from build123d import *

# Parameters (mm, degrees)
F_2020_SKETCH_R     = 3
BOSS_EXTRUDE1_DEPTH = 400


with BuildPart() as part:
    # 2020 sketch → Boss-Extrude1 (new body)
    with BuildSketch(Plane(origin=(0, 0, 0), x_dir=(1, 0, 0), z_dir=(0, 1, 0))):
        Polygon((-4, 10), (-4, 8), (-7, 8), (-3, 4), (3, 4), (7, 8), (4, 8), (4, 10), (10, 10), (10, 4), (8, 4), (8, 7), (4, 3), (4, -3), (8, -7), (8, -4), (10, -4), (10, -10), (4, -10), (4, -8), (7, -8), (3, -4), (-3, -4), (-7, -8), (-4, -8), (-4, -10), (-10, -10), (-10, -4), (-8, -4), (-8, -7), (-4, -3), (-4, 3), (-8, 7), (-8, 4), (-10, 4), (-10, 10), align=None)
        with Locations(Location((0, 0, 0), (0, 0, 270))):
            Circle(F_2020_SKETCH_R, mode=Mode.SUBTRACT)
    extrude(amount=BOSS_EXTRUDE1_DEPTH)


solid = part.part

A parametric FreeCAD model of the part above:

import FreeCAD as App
import Part
import Sketcher
from FreeCAD import Vector


def add_polygon(sketch, points):
    """Adds a closed chain of lines whose ends are joined by coincident constraints."""
    first, n = sketch.GeometryCount, len(points)
    for a, b in zip(points, points[1:] + points[:1]):
        sketch.addGeometry(Part.LineSegment(App.Vector(*a, 0), App.Vector(*b, 0)), False)
    for i in range(n):
        sketch.addConstraint(Sketcher.Constraint("Coincident", first + i, 2, first + (i + 1) % n, 1))

doc = App.newDocument("Part")
params = doc.addObject("Spreadsheet::Sheet", "Params")
for row, (alias, value) in enumerate([
    ("sketch1_diameter", "6 mm"),
    ("sketch1_width", "6 mm"),
    ("sketch1_width2", "2 mm"),
    ("sketch1_width3", "3 mm"),
    ("pad1_length", "400 mm"),
], start=1):
    params.set(f"A{row}", alias)
    params.set(f"B{row}", "=" + value)
    params.setAlias(f"B{row}", alias)

body = doc.addObject("PartDesign::Body", "Body")

sketch1 = body.newObject("Sketcher::SketchObject", "Sketch")
sketch1.AttachmentSupport = (doc.getObject("XZ_Plane"), [""])
sketch1.MapMode = "FlatFace"
add_polygon(sketch1, [(-4, -8), (-4, -10), (-10, -10), (-10, -4), (-8, -4), (-8, -7), (-4, -3), (-4, 3), (-8, 7), (-8, 4), (-10, 4), (-10, 10), (-4, 10), (-4, 8), (-7, 8), (-3, 4), (3, 4), (7, 8), (4, 8), (4, 10), (10, 10), (10, 4), (8, 4), (8, 7), (4, 3), (4, -3), (8, -7), (8, -4), (10, -4), (10, -10), (4, -10), (4, -8), (7, -8), (3, -4), (-3, -4), (-7, -8)])
sketch1.addGeometry(Part.Circle(Vector(0, 0, 0), Vector(0, 0, 1), 3), False)
sketch1.addConstraint([
    Sketcher.Constraint("Vertical", 0),
    Sketcher.Constraint("Horizontal", 1),
    Sketcher.Constraint("Vertical", 2),
    Sketcher.Constraint("Horizontal", 3),
    Sketcher.Constraint("Vertical", 4),
    Sketcher.Constraint("Vertical", 6),
    Sketcher.Constraint("Vertical", 8),
    Sketcher.Constraint("Horizontal", 9),
    Sketcher.Constraint("Vertical", 10),
    Sketcher.Constraint("Horizontal", 11),
    Sketcher.Constraint("Vertical", 12),
    Sketcher.Constraint("Horizontal", 13),
    Sketcher.Constraint("Horizontal", 15),
    Sketcher.Constraint("Horizontal", 17),
    Sketcher.Constraint("Vertical", 18),
    Sketcher.Constraint("Horizontal", 19),
    Sketcher.Constraint("Vertical", 20),
    Sketcher.Constraint("Horizontal", 21),
    Sketcher.Constraint("Vertical", 22),
    Sketcher.Constraint("Vertical", 24),
    Sketcher.Constraint("Vertical", 26),
    Sketcher.Constraint("Horizontal", 27),
    Sketcher.Constraint("Vertical", 28),
    Sketcher.Constraint("Horizontal", 29),
    Sketcher.Constraint("Vertical", 30),
    Sketcher.Constraint("Horizontal", 31),
    Sketcher.Constraint("Horizontal", 33),
    Sketcher.Constraint("Horizontal", 35),
    Sketcher.Constraint("Coincident", 36, 3, -1, 1),
    Sketcher.Constraint("Symmetric", 0, 2, 18, 2, -1, 1),
    Sketcher.Constraint("Symmetric", 2, 2, 20, 2, -1, 1),
    Sketcher.Constraint("Symmetric", 4, 2, 22, 2, -1, 1),
    Sketcher.Constraint("Symmetric", 5, 2, 23, 2, -1, 1),
    Sketcher.Constraint("Symmetric", 7, 2, 25, 2, -1, 1),
    Sketcher.Constraint("Symmetric", 9, 2, 27, 2, -1, 1),
    Sketcher.Constraint("Symmetric", 11, 2, 29, 2, -1, 1),
    Sketcher.Constraint("Symmetric", 13, 2, 31, 2, -1, 1),
    Sketcher.Constraint("Symmetric", 14, 2, 32, 2, -1, 1),
    Sketcher.Constraint("Symmetric", 16, 2, 34, 2, -1, 1),
    Sketcher.Constraint("Symmetric", 13, 2, 16, 2, -2),
    Sketcher.Constraint("Symmetric", 11, 2, 18, 2, -2),
    Sketcher.Constraint("Symmetric", 9, 2, 20, 2, -2),
    Sketcher.Constraint("Symmetric", 7, 2, 22, 2, -2),
    Sketcher.Constraint("Perpendicular", 5, 7),
    Sketcher.Constraint("Parallel", 7, 14),
    Sketcher.Constraint("Perpendicular", 14, 16),
    Sketcher.Constraint("Perpendicular", 23, 25),
    Sketcher.Constraint("Perpendicular", 32, 34),
    Sketcher.Constraint("Horizontal", 9, 2, 14, 2),
    Sketcher.Constraint("Horizontal", 6, 2, 23, 2),
    Sketcher.Constraint("Vertical", 0, 2, 5, 2),
    Sketcher.Constraint("Equal", 11, 15),
    Sketcher.Constraint("Equal", 27, 0),
    Sketcher.Constraint("Equal", 33, 2),
    Sketcher.Constraint("Equal", 35, 4),
    Sketcher.Constraint("Equal", 2, 6),
    Sketcher.Constraint("Diameter", 36, 6.0),
    Sketcher.Constraint("DistanceX", 1, 2, 1, 1, 6.0),
    Sketcher.Constraint("DistanceX", 3, 1, 3, 2, 2.0),
    Sketcher.Constraint("DistanceX", 13, 2, 13, 1, 3.0),
])
sketch1.setExpression("Constraints[92]", "Params.sketch1_diameter")
sketch1.setExpression("Constraints[93]", "Params.sketch1_width")
sketch1.setExpression("Constraints[94]", "Params.sketch1_width2")
sketch1.setExpression("Constraints[95]", "Params.sketch1_width3")
pad1 = body.newObject("PartDesign::Pad", "Pad")
pad1.Profile = sketch1
pad1.setExpression("Length", "Params.pad1_length")
pad1.Reversed = True

doc.recompute()
